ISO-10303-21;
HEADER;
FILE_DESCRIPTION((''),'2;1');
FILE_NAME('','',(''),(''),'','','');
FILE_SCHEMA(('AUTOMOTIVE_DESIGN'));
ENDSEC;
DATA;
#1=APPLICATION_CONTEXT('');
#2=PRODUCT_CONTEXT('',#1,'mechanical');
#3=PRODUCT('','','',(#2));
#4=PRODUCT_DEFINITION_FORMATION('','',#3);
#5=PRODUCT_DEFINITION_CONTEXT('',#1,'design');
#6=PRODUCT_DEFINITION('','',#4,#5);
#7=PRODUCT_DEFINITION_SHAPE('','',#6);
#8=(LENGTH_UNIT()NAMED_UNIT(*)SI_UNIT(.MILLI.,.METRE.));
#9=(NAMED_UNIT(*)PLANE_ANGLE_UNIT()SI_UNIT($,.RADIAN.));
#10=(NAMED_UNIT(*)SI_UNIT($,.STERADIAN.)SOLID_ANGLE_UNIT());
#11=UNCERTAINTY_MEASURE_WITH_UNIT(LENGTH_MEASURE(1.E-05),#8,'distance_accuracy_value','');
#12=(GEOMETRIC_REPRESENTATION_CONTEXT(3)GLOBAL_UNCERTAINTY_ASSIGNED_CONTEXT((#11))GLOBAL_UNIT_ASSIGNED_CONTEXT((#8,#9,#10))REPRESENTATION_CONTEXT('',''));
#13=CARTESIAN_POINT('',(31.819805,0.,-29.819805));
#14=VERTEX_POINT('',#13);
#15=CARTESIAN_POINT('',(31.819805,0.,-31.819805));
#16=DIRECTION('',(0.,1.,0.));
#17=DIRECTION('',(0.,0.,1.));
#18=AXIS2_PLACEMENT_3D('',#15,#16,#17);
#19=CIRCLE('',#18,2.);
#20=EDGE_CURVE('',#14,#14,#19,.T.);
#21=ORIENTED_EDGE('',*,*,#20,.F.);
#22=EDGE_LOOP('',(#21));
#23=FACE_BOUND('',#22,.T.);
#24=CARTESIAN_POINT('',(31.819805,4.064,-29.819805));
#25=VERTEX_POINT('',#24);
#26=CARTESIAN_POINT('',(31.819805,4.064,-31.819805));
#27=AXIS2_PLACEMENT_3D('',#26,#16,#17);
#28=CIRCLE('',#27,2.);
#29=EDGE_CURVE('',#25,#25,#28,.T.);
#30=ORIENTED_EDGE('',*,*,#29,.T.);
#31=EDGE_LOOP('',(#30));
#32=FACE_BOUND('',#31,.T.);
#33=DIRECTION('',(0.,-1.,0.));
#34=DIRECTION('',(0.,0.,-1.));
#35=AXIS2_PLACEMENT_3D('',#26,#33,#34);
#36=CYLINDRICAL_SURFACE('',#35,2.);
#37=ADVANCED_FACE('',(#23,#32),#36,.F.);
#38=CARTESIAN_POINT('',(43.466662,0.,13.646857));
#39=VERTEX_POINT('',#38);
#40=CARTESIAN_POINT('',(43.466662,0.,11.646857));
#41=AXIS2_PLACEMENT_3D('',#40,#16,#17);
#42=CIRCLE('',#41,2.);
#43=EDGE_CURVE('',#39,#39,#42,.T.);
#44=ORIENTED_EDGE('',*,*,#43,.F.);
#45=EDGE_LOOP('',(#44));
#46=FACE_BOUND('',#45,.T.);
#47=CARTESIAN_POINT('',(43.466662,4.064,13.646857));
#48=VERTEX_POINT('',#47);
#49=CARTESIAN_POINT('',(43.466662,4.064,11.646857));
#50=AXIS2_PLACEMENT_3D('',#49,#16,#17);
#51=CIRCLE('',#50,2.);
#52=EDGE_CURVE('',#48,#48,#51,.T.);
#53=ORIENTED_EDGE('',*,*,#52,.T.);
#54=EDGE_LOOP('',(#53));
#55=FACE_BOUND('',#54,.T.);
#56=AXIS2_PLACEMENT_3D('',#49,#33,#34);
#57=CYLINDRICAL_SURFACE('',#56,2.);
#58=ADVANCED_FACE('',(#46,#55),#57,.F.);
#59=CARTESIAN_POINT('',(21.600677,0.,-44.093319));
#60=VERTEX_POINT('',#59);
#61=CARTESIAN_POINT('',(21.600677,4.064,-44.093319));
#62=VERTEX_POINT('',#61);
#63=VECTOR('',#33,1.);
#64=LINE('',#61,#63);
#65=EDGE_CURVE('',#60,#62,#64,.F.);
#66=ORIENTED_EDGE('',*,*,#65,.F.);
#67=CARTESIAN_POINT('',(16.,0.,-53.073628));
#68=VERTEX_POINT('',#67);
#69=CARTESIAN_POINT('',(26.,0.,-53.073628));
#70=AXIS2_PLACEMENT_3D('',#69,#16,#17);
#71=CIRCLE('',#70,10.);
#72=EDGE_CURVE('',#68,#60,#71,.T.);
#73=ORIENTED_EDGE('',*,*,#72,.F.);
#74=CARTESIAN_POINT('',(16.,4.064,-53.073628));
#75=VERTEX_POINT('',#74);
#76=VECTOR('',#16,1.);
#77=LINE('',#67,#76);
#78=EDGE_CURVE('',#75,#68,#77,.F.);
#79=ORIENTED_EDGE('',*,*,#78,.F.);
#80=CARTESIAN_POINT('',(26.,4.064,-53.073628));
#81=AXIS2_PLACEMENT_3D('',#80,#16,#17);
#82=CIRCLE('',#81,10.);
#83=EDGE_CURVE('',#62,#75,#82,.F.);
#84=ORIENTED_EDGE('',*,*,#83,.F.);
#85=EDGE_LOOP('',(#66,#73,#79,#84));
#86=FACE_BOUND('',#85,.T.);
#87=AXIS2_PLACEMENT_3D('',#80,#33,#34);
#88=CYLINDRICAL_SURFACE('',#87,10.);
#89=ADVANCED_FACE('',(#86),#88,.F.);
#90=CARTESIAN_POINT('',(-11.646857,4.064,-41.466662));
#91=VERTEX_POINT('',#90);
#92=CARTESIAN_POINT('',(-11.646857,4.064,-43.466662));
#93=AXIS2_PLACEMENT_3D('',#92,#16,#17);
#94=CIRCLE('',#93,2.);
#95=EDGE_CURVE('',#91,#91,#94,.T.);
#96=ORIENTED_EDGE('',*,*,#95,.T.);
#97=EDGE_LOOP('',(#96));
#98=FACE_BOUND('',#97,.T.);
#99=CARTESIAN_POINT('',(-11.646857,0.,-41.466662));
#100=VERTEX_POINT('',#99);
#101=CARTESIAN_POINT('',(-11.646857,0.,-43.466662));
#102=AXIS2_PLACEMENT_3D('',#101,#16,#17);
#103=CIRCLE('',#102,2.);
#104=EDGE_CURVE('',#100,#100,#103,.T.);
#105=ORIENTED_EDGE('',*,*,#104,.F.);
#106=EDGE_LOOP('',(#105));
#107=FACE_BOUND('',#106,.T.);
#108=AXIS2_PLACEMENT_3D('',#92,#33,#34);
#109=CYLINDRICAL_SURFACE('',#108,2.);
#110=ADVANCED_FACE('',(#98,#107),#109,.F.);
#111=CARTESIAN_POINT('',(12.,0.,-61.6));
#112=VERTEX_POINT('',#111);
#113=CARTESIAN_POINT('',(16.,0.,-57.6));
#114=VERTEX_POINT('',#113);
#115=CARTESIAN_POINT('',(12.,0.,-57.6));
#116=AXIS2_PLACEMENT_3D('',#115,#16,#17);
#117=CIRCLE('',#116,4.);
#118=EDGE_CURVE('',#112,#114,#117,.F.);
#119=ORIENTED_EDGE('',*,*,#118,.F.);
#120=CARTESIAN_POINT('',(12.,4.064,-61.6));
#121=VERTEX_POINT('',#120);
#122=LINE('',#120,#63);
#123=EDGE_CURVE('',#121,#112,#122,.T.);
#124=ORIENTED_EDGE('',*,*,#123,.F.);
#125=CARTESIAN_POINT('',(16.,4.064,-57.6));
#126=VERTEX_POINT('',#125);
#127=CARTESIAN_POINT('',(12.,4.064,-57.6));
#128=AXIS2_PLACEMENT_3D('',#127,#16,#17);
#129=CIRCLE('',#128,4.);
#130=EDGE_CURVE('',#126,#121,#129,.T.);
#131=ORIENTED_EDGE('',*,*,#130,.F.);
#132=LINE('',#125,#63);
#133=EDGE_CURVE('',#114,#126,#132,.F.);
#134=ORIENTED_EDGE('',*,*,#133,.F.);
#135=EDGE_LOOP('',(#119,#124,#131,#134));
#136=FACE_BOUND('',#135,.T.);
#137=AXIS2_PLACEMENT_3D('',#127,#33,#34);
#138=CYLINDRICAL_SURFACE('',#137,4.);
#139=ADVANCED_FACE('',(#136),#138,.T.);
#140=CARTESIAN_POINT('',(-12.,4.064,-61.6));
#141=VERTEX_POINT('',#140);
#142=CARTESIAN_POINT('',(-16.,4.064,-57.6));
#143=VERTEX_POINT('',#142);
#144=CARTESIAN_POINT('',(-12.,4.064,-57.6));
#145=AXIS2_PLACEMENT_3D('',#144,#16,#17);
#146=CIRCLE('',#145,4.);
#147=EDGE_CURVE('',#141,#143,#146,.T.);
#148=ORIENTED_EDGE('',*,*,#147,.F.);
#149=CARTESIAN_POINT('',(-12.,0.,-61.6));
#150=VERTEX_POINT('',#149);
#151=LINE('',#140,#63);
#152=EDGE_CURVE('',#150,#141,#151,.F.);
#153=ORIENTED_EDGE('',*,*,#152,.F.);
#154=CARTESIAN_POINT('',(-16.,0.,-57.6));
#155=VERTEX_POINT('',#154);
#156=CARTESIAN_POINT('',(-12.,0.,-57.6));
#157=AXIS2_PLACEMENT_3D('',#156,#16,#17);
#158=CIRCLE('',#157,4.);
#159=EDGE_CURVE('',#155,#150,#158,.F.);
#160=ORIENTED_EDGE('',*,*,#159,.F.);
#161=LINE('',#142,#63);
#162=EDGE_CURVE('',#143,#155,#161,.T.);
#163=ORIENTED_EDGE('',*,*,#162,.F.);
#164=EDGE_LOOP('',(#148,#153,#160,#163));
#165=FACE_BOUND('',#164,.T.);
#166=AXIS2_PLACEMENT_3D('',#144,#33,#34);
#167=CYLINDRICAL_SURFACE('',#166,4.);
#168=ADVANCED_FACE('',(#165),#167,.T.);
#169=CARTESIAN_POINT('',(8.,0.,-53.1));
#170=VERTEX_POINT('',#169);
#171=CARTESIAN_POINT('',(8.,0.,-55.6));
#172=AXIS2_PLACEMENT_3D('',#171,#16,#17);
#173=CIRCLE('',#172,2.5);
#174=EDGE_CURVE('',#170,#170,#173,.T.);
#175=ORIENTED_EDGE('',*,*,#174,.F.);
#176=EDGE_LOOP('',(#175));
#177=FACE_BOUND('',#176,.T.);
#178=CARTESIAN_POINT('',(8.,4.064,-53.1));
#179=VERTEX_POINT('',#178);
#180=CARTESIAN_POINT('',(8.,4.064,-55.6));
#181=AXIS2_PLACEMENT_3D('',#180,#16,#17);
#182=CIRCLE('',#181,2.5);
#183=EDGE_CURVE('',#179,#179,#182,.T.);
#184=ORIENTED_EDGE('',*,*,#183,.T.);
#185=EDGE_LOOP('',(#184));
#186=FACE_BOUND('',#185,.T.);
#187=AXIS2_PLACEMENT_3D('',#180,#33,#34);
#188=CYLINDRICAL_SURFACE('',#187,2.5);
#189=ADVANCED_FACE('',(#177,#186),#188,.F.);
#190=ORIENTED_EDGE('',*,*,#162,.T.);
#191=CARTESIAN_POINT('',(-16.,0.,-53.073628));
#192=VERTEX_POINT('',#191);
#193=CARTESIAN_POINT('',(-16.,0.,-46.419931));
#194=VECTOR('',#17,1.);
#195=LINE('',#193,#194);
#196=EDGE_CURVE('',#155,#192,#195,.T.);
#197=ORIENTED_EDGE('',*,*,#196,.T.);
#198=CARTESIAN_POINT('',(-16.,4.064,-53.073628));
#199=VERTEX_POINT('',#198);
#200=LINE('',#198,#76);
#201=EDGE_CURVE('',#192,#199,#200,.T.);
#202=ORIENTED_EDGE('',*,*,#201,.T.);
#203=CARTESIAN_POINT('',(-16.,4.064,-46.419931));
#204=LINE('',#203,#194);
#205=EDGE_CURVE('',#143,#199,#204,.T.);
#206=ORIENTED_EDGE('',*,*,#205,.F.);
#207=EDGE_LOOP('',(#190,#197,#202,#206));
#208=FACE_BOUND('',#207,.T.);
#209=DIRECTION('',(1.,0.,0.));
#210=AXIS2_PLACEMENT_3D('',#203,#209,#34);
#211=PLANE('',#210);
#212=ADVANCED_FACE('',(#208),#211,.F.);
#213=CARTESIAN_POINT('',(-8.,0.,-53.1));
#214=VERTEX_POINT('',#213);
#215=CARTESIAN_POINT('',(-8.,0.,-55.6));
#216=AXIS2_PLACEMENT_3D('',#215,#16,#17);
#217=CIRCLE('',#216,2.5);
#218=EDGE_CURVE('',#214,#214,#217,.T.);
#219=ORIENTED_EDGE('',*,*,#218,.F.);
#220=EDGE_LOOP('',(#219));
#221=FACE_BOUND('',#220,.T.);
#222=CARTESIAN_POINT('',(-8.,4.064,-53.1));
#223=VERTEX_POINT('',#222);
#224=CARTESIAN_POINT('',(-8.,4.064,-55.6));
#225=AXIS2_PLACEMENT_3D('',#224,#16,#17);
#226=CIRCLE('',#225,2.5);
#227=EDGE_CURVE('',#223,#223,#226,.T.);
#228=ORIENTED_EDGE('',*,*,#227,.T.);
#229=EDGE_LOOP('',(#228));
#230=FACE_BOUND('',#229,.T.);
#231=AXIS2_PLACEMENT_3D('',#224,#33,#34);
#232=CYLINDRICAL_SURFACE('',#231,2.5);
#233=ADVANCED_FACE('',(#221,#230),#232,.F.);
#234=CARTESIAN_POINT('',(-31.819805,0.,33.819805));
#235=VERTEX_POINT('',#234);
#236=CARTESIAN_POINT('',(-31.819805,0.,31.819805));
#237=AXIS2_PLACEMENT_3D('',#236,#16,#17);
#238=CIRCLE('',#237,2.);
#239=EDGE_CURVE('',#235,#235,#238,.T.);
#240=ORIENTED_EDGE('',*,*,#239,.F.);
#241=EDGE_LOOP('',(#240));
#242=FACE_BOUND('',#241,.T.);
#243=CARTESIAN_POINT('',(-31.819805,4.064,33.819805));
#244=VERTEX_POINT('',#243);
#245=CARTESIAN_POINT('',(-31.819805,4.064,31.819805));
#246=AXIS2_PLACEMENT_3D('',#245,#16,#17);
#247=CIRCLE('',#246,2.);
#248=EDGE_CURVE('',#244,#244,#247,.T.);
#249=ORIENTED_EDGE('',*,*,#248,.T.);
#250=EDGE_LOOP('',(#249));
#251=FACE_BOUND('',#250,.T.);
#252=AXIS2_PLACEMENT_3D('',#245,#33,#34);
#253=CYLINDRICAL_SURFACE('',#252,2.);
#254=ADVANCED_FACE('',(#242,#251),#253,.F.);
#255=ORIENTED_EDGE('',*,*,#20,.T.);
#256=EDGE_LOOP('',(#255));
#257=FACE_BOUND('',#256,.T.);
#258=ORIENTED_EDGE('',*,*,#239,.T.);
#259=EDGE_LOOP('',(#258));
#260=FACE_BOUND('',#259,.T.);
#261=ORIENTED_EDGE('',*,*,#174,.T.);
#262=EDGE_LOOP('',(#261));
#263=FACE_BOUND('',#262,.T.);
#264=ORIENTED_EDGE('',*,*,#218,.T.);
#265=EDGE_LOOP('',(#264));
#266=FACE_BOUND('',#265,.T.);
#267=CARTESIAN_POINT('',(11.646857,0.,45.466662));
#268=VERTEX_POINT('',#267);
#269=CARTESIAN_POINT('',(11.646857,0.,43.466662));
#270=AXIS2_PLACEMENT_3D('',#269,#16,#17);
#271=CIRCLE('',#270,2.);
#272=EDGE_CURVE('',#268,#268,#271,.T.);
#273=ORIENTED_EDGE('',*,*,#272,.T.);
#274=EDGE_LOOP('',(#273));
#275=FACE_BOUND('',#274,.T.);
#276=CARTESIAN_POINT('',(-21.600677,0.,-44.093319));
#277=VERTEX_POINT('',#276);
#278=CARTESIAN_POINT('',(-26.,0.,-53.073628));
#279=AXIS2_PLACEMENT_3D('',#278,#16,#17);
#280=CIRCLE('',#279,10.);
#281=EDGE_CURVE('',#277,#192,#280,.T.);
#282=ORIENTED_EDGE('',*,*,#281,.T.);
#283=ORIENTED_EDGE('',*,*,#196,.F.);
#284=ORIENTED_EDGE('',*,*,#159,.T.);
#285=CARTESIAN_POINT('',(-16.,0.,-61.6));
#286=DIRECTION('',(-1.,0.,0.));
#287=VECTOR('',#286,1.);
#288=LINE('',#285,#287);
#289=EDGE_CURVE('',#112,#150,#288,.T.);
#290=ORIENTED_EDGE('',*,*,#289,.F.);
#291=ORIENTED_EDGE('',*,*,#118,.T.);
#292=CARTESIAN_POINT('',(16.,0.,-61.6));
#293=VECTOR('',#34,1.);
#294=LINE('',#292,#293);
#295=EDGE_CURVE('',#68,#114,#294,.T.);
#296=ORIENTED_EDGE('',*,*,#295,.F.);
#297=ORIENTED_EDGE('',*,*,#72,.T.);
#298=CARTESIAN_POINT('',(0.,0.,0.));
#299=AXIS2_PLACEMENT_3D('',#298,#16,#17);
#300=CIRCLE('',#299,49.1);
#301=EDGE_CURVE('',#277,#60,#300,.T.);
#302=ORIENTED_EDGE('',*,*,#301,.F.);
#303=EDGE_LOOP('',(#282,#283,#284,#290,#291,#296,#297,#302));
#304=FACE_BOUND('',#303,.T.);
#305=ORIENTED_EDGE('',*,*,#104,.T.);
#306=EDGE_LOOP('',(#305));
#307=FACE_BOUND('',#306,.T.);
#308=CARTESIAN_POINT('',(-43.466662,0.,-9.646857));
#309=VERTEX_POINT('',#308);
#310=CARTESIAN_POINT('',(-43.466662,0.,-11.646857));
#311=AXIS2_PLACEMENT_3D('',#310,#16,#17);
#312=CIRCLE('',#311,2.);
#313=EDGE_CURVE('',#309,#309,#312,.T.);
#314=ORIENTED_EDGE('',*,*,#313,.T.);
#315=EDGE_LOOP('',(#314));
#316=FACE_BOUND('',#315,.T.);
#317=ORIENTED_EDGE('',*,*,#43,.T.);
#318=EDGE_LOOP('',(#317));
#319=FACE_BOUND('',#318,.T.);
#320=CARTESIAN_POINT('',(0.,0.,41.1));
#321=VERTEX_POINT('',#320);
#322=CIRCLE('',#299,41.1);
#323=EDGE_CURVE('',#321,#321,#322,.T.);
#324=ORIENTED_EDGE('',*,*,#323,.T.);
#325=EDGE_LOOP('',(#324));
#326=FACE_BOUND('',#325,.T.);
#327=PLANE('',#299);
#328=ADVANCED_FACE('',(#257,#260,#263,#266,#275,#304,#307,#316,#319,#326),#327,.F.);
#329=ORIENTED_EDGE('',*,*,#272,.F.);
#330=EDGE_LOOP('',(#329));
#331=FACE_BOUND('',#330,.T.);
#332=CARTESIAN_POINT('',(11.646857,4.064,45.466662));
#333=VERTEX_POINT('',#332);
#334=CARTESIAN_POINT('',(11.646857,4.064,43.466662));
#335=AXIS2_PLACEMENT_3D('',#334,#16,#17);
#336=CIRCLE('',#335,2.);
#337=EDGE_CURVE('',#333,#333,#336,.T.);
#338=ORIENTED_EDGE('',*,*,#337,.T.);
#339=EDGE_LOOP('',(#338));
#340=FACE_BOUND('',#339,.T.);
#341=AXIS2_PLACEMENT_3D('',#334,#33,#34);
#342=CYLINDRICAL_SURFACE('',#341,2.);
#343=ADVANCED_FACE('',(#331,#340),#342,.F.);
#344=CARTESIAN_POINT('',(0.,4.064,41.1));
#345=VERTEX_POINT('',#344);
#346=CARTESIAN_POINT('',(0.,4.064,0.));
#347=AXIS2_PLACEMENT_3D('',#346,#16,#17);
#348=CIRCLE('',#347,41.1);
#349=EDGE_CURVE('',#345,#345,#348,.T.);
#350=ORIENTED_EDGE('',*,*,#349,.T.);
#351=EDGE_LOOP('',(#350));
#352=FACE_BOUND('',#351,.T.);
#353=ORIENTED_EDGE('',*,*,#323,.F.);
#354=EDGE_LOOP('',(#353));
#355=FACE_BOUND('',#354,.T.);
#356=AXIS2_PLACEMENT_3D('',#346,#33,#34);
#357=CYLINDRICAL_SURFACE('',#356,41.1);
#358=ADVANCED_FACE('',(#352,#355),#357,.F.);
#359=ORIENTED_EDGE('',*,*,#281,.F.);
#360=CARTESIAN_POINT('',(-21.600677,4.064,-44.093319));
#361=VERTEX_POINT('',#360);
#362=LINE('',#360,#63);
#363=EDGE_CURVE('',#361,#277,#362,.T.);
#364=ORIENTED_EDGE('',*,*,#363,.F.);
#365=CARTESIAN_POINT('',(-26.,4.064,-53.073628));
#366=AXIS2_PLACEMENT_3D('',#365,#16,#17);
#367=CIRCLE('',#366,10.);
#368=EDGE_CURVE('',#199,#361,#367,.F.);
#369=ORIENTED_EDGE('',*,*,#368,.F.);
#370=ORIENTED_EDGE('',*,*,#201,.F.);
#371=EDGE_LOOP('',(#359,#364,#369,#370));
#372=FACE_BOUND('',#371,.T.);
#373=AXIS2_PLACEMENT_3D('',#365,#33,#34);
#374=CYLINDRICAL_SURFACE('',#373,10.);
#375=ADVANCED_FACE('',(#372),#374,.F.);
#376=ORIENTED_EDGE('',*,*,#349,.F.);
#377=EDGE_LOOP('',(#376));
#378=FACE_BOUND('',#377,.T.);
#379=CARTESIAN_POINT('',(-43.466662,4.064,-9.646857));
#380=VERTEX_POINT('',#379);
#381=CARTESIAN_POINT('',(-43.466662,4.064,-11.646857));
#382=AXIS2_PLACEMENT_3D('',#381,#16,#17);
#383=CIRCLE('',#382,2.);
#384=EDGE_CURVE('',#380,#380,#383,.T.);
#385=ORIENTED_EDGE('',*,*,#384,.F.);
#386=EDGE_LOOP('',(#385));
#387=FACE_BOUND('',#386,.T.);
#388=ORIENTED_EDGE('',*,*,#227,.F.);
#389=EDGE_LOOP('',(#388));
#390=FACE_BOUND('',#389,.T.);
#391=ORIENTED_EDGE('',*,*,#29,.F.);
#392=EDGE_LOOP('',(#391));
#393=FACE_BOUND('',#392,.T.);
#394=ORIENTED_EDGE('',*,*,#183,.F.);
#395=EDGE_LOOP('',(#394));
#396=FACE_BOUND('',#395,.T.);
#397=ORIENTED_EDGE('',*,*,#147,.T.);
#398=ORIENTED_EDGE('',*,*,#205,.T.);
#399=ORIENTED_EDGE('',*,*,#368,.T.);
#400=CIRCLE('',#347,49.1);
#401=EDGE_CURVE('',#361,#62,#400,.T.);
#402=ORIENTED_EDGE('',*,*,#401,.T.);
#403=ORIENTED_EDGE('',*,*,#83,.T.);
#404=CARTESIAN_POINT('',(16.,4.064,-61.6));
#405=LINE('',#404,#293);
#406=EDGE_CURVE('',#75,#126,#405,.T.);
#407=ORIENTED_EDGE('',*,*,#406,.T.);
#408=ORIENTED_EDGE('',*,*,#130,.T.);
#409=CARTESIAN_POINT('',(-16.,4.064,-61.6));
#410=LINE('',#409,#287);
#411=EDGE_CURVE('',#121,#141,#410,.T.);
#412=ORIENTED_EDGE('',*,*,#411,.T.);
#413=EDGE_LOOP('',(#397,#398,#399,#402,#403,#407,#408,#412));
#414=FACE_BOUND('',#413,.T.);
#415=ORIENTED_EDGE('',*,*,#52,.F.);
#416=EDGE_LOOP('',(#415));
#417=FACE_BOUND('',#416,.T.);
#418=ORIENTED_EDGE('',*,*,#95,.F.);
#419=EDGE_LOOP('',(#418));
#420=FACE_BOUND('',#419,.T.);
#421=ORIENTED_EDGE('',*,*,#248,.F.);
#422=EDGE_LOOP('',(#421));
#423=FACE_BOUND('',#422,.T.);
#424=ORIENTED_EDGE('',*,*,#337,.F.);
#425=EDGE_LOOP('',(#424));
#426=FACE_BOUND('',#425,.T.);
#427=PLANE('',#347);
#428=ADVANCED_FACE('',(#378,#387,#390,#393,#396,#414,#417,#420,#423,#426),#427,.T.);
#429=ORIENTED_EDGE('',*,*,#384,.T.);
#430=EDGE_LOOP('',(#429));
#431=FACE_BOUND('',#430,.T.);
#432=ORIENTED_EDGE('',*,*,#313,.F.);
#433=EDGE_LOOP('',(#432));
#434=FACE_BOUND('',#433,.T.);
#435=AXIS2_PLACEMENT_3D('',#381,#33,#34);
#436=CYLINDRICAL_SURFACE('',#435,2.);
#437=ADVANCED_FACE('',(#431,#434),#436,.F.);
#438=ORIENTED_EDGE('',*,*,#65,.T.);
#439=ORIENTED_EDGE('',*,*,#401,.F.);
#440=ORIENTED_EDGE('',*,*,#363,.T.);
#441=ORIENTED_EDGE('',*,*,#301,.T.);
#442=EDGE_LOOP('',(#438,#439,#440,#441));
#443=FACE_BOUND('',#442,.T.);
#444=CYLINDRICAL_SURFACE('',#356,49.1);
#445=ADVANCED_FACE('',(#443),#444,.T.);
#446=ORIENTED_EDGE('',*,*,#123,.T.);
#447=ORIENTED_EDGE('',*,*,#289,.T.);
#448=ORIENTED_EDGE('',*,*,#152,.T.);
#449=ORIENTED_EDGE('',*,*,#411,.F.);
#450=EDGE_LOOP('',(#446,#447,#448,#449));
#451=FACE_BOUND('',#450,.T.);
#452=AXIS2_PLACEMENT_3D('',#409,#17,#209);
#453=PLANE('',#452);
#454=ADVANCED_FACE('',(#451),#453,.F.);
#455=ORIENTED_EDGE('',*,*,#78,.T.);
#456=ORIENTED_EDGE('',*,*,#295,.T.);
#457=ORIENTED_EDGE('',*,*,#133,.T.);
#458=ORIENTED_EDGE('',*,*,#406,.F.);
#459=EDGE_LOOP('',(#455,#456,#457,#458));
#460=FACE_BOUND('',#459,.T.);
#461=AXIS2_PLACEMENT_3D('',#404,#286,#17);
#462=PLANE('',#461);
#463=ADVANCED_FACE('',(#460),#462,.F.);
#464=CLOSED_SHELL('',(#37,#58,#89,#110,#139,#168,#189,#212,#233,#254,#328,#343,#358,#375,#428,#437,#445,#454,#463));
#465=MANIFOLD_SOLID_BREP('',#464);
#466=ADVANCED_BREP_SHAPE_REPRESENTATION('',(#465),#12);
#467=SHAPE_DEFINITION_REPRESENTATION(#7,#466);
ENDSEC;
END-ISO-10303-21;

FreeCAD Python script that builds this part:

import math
import FreeCAD as App
import Part
import Sketcher


def edges_at(feature, points):
    """Names of the edges that pass closest to the given points."""
    edges = feature.Shape.Edges
    near = lambda p: min(range(len(edges)), key=lambda i: edges[i].distToShape(Part.Vertex(*p))[0])
    return sorted({f"Edge{near(p) + 1}" for p in points})

doc = App.newDocument("Part")
body = doc.addObject("PartDesign::Body", "Body")

sketch1 = body.newObject("Sketcher::SketchObject", "Sketch")
sketch1.AttachmentSupport = (doc.getObject("XZ_Plane"), [""])
sketch1.MapMode = "FlatFace"
sketch1.addGeometry(Part.LineSegment(App.Vector(-16, -61.6, 0), App.Vector(-16, -46.4, 0)), False)
sketch1.addGeometry(Part.ArcOfCircle(Part.Circle(App.Vector(0, 0, 0), App.Vector(0, 0, 1), 49.1), math.radians(-71), math.radians(251)), False)
sketch1.addGeometry(Part.LineSegment(App.Vector(16, -46.4, 0), App.Vector(16, -61.6, 0)), False)
sketch1.addGeometry(Part.LineSegment(App.Vector(16, -61.6, 0), App.Vector(-16, -61.6, 0)), False)
sketch1.addGeometry(Part.Circle(App.Vector(11.6, 43.5, 0), App.Vector(0, 0, 1), 2), False)
sketch1.addGeometry(Part.Circle(App.Vector(43.5, 11.6, 0), App.Vector(0, 0, 1), 2), False)
sketch1.addGeometry(Part.Circle(App.Vector(-31.8, 31.8, 0), App.Vector(0, 0, 1), 2), False)
sketch1.addGeometry(Part.Circle(App.Vector(0, 0, 0), App.Vector(0, 0, 1), 41.1), False)
sketch1.addGeometry(Part.Circle(App.Vector(31.8, -31.8, 0), App.Vector(0, 0, 1), 2), False)
sketch1.addGeometry(Part.Circle(App.Vector(8, -55.6, 0), App.Vector(0, 0, 1), 2.5), False)
sketch1.addGeometry(Part.Circle(App.Vector(-43.5, -11.6, 0), App.Vector(0, 0, 1), 2), False)
sketch1.addGeometry(Part.Circle(App.Vector(-11.6, -43.5, 0), App.Vector(0, 0, 1), 2), False)
sketch1.addGeometry(Part.Circle(App.Vector(-8, -55.6, 0), App.Vector(0, 0, 1), 2.5), False)
sketch1.addConstraint(Sketcher.Constraint("Coincident", 0, 2, 1, 2))
sketch1.addConstraint(Sketcher.Constraint("Coincident", 1, 1, 2, 1))
sketch1.addConstraint(Sketcher.Constraint("Coincident", 2, 2, 3, 1))
sketch1.addConstraint(Sketcher.Constraint("Coincident", 3, 2, 0, 1))
sketch1.addConstraint(Sketcher.Constraint("Vertical", 0))
sketch1.addConstraint(Sketcher.Constraint("Vertical", 2))
sketch1.addConstraint(Sketcher.Constraint("Horizontal", 3))
sketch1.addConstraint(Sketcher.Constraint("Coincident", 1, 3, -1, 1))
sketch1.addConstraint(Sketcher.Constraint("Coincident", 7, 3, -1, 1))
sketch1.addConstraint(Sketcher.Constraint("Equal", 4, 5))
sketch1.addConstraint(Sketcher.Constraint("Equal", 5, 6))
sketch1.addConstraint(Sketcher.Constraint("Equal", 6, 8))
sketch1.addConstraint(Sketcher.Constraint("Equal", 8, 10))
sketch1.addConstraint(Sketcher.Constraint("Equal", 10, 11))
sketch1.addConstraint(Sketcher.Constraint("Equal", 9, 12))
sketch1.addConstraint(Sketcher.Constraint("Symmetric", 6, 3, 8, 3, -1, 1))
sketch1.addConstraint(Sketcher.Constraint("Symmetric", 5, 3, 10, 3, -1, 1))
sketch1.addConstraint(Sketcher.Constraint("Symmetric", 4, 3, 11, 3, -1, 1))
sketch1.addConstraint(Sketcher.Constraint("Symmetric", 9, 3, 12, 3, -2))
sketch1.addConstraint(Sketcher.Constraint("Horizontal", 0, 2, 1, 1))
sketch1.addConstraint(Sketcher.Constraint("Diameter", 4, 4.0))
sketch1.addConstraint(Sketcher.Constraint("Diameter", 9, 5.0))
sketch1.addConstraint(Sketcher.Constraint("Diameter", 7, 82.2))
sketch1.addConstraint(Sketcher.Constraint("Radius", 1, 49.1))
sketch1.addConstraint(Sketcher.Constraint("DistanceX", 3, 2, 3, 1, 32.0))
sketch1.addConstraint(Sketcher.Constraint("DistanceX", -1, 1, 9, 3, 8.0))
sketch1.addConstraint(Sketcher.Constraint("DistanceY", 2, 2, 9, 3, 6.0))
sketch1.addConstraint(Sketcher.Constraint("DistanceY", 9, 3, -1, 1, 55.6))
sketch1.addConstraint(Sketcher.Constraint("DistanceY", 5, 3, 6, 3, 20.172948))
sketch1.addConstraint(Sketcher.Constraint("DistanceX", 4, 3, 8, 3, 20.172948))
sketch1.addConstraint(Sketcher.Constraint("DistanceX", 6, 3, 8, 3, 63.63961))
sketch1.addConstraint(Sketcher.Constraint("DistanceY", 8, 3, 6, 3, 63.63961))
sketch1.addConstraint(Sketcher.Constraint("DistanceY", 0, 2, 11, 3, 2.953269))
sketch1.addConstraint(Sketcher.Constraint("DistanceX", -1, 1, 5, 3, 43.466662))
pad1 = body.newObject("PartDesign::Pad", "Pad")
pad1.Profile = sketch1
pad1.Length = 4.064
pad1.Reversed = True
doc.recompute()

fillet = body.newObject("PartDesign::Fillet", "Fillet")
fillet.Base = (pad1, edges_at(pad1, [(-16, 2.032, -61.6), (16, 2.032, -61.6)]))
fillet.Radius = 4
doc.recompute()

fillet2 = body.newObject("PartDesign::Fillet", "Fillet001")
fillet2.Base = (fillet, edges_at(fillet, [(16, 2.032, -46.42), (-16, 2.032, -46.42)]))
fillet2.Radius = 10

doc.recompute()
